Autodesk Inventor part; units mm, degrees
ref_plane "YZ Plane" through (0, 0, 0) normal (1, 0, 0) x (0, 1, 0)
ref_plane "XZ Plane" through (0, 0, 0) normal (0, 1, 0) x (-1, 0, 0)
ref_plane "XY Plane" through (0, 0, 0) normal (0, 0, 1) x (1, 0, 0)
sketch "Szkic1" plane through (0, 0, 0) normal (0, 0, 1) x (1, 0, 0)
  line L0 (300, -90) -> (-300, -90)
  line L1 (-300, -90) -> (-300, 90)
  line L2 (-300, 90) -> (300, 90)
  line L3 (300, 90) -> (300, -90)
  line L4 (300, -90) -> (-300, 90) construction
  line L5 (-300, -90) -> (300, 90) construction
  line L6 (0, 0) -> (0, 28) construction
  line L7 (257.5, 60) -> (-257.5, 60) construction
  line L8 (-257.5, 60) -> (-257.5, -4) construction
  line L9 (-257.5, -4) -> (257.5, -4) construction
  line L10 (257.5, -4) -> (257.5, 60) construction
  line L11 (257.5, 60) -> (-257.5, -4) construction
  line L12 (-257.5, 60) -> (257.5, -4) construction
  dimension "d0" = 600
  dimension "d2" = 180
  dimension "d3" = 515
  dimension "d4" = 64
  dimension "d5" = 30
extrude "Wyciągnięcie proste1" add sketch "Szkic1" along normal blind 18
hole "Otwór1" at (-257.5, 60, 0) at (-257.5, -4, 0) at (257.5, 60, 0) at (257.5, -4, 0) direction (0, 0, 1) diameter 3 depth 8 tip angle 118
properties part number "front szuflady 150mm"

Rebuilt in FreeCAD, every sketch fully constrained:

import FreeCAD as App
import Part
import Sketcher


def add_polygon(sketch, points):
    """Adds a closed chain of lines whose ends are joined by coincident constraints."""
    first, n = sketch.GeometryCount, len(points)
    for a, b in zip(points, points[1:] + points[:1]):
        sketch.addGeometry(Part.LineSegment(App.Vector(*a, 0), App.Vector(*b, 0)), False)
    for i in range(n):
        sketch.addConstraint(Sketcher.Constraint("Coincident", first + i, 2, first + (i + 1) % n, 1))

doc = App.newDocument("Part")
body = doc.addObject("PartDesign::Body", "Body")

sketch1 = body.newObject("Sketcher::SketchObject", "Sketch")
sketch1.AttachmentSupport = (doc.getObject("XY_Plane"), [""])
sketch1.MapMode = "FlatFace"
add_polygon(sketch1, [(-300, -90), (300, -90), (300, 90), (-300, 90)])
sketch1.addConstraint([
    Sketcher.Constraint("Horizontal", 0),
    Sketcher.Constraint("Vertical", 1),
    Sketcher.Constraint("Horizontal", 2),
    Sketcher.Constraint("Vertical", 3),
    Sketcher.Constraint("Symmetric", 0, 2, 2, 2, -1, 1),
    Sketcher.Constraint("DistanceX", 0, 1, 0, 2, 600.0),
    Sketcher.Constraint("DistanceY", 1, 1, 1, 2, 180.0),
])
pad1 = body.newObject("PartDesign::Pad", "Pad")
pad1.Profile = sketch1
pad1.Length = 18

sketch2 = body.newObject("Sketcher::SketchObject", "Sketch001")
sketch2.AttachmentSupport = (doc.getObject("XY_Plane"), [""])
sketch2.MapMode = "FlatFace"
sketch2.addGeometry([
    Part.Circle(App.Vector(-257.5, 60, 0), App.Vector(0, 0, 1), 1.5),
    Part.Circle(App.Vector(-257.5, -4, 0), App.Vector(0, 0, 1), 1.5),
    Part.Circle(App.Vector(257.5, 60, 0), App.Vector(0, 0, 1), 1.5),
    Part.Circle(App.Vector(257.5, -4, 0), App.Vector(0, 0, 1), 1.5),
], False)
sketch2.addConstraint([
    Sketcher.Constraint("Equal", 0, 1),
    Sketcher.Constraint("Equal", 1, 2),
    Sketcher.Constraint("Equal", 2, 3),
    Sketcher.Constraint("Symmetric", 0, 3, 2, 3, -2),
    Sketcher.Constraint("Symmetric", 1, 3, 3, 3, -2),
    Sketcher.Constraint("Vertical", 0, 3, 1, 3),
    Sketcher.Constraint("Diameter", 0, 3.0),
    Sketcher.Constraint("DistanceY", -1, 1, 0, 3, 60.0),
    Sketcher.Constraint("DistanceY", 1, 3, -1, 1, 4.0),
    Sketcher.Constraint("DistanceX", 0, 3, 2, 3, 515.0),
])
doc.recompute()
hole = body.newObject("PartDesign::Hole", "Hole")
hole.Profile = sketch2
hole.ThreadType = "None"
hole.Diameter = 3
hole.DepthType = "Dimension"
hole.Depth = 8
hole.DrillPoint = "Angled"
hole.DrillPointAngle = 118
hole.Reversed = True

doc.recompute()
